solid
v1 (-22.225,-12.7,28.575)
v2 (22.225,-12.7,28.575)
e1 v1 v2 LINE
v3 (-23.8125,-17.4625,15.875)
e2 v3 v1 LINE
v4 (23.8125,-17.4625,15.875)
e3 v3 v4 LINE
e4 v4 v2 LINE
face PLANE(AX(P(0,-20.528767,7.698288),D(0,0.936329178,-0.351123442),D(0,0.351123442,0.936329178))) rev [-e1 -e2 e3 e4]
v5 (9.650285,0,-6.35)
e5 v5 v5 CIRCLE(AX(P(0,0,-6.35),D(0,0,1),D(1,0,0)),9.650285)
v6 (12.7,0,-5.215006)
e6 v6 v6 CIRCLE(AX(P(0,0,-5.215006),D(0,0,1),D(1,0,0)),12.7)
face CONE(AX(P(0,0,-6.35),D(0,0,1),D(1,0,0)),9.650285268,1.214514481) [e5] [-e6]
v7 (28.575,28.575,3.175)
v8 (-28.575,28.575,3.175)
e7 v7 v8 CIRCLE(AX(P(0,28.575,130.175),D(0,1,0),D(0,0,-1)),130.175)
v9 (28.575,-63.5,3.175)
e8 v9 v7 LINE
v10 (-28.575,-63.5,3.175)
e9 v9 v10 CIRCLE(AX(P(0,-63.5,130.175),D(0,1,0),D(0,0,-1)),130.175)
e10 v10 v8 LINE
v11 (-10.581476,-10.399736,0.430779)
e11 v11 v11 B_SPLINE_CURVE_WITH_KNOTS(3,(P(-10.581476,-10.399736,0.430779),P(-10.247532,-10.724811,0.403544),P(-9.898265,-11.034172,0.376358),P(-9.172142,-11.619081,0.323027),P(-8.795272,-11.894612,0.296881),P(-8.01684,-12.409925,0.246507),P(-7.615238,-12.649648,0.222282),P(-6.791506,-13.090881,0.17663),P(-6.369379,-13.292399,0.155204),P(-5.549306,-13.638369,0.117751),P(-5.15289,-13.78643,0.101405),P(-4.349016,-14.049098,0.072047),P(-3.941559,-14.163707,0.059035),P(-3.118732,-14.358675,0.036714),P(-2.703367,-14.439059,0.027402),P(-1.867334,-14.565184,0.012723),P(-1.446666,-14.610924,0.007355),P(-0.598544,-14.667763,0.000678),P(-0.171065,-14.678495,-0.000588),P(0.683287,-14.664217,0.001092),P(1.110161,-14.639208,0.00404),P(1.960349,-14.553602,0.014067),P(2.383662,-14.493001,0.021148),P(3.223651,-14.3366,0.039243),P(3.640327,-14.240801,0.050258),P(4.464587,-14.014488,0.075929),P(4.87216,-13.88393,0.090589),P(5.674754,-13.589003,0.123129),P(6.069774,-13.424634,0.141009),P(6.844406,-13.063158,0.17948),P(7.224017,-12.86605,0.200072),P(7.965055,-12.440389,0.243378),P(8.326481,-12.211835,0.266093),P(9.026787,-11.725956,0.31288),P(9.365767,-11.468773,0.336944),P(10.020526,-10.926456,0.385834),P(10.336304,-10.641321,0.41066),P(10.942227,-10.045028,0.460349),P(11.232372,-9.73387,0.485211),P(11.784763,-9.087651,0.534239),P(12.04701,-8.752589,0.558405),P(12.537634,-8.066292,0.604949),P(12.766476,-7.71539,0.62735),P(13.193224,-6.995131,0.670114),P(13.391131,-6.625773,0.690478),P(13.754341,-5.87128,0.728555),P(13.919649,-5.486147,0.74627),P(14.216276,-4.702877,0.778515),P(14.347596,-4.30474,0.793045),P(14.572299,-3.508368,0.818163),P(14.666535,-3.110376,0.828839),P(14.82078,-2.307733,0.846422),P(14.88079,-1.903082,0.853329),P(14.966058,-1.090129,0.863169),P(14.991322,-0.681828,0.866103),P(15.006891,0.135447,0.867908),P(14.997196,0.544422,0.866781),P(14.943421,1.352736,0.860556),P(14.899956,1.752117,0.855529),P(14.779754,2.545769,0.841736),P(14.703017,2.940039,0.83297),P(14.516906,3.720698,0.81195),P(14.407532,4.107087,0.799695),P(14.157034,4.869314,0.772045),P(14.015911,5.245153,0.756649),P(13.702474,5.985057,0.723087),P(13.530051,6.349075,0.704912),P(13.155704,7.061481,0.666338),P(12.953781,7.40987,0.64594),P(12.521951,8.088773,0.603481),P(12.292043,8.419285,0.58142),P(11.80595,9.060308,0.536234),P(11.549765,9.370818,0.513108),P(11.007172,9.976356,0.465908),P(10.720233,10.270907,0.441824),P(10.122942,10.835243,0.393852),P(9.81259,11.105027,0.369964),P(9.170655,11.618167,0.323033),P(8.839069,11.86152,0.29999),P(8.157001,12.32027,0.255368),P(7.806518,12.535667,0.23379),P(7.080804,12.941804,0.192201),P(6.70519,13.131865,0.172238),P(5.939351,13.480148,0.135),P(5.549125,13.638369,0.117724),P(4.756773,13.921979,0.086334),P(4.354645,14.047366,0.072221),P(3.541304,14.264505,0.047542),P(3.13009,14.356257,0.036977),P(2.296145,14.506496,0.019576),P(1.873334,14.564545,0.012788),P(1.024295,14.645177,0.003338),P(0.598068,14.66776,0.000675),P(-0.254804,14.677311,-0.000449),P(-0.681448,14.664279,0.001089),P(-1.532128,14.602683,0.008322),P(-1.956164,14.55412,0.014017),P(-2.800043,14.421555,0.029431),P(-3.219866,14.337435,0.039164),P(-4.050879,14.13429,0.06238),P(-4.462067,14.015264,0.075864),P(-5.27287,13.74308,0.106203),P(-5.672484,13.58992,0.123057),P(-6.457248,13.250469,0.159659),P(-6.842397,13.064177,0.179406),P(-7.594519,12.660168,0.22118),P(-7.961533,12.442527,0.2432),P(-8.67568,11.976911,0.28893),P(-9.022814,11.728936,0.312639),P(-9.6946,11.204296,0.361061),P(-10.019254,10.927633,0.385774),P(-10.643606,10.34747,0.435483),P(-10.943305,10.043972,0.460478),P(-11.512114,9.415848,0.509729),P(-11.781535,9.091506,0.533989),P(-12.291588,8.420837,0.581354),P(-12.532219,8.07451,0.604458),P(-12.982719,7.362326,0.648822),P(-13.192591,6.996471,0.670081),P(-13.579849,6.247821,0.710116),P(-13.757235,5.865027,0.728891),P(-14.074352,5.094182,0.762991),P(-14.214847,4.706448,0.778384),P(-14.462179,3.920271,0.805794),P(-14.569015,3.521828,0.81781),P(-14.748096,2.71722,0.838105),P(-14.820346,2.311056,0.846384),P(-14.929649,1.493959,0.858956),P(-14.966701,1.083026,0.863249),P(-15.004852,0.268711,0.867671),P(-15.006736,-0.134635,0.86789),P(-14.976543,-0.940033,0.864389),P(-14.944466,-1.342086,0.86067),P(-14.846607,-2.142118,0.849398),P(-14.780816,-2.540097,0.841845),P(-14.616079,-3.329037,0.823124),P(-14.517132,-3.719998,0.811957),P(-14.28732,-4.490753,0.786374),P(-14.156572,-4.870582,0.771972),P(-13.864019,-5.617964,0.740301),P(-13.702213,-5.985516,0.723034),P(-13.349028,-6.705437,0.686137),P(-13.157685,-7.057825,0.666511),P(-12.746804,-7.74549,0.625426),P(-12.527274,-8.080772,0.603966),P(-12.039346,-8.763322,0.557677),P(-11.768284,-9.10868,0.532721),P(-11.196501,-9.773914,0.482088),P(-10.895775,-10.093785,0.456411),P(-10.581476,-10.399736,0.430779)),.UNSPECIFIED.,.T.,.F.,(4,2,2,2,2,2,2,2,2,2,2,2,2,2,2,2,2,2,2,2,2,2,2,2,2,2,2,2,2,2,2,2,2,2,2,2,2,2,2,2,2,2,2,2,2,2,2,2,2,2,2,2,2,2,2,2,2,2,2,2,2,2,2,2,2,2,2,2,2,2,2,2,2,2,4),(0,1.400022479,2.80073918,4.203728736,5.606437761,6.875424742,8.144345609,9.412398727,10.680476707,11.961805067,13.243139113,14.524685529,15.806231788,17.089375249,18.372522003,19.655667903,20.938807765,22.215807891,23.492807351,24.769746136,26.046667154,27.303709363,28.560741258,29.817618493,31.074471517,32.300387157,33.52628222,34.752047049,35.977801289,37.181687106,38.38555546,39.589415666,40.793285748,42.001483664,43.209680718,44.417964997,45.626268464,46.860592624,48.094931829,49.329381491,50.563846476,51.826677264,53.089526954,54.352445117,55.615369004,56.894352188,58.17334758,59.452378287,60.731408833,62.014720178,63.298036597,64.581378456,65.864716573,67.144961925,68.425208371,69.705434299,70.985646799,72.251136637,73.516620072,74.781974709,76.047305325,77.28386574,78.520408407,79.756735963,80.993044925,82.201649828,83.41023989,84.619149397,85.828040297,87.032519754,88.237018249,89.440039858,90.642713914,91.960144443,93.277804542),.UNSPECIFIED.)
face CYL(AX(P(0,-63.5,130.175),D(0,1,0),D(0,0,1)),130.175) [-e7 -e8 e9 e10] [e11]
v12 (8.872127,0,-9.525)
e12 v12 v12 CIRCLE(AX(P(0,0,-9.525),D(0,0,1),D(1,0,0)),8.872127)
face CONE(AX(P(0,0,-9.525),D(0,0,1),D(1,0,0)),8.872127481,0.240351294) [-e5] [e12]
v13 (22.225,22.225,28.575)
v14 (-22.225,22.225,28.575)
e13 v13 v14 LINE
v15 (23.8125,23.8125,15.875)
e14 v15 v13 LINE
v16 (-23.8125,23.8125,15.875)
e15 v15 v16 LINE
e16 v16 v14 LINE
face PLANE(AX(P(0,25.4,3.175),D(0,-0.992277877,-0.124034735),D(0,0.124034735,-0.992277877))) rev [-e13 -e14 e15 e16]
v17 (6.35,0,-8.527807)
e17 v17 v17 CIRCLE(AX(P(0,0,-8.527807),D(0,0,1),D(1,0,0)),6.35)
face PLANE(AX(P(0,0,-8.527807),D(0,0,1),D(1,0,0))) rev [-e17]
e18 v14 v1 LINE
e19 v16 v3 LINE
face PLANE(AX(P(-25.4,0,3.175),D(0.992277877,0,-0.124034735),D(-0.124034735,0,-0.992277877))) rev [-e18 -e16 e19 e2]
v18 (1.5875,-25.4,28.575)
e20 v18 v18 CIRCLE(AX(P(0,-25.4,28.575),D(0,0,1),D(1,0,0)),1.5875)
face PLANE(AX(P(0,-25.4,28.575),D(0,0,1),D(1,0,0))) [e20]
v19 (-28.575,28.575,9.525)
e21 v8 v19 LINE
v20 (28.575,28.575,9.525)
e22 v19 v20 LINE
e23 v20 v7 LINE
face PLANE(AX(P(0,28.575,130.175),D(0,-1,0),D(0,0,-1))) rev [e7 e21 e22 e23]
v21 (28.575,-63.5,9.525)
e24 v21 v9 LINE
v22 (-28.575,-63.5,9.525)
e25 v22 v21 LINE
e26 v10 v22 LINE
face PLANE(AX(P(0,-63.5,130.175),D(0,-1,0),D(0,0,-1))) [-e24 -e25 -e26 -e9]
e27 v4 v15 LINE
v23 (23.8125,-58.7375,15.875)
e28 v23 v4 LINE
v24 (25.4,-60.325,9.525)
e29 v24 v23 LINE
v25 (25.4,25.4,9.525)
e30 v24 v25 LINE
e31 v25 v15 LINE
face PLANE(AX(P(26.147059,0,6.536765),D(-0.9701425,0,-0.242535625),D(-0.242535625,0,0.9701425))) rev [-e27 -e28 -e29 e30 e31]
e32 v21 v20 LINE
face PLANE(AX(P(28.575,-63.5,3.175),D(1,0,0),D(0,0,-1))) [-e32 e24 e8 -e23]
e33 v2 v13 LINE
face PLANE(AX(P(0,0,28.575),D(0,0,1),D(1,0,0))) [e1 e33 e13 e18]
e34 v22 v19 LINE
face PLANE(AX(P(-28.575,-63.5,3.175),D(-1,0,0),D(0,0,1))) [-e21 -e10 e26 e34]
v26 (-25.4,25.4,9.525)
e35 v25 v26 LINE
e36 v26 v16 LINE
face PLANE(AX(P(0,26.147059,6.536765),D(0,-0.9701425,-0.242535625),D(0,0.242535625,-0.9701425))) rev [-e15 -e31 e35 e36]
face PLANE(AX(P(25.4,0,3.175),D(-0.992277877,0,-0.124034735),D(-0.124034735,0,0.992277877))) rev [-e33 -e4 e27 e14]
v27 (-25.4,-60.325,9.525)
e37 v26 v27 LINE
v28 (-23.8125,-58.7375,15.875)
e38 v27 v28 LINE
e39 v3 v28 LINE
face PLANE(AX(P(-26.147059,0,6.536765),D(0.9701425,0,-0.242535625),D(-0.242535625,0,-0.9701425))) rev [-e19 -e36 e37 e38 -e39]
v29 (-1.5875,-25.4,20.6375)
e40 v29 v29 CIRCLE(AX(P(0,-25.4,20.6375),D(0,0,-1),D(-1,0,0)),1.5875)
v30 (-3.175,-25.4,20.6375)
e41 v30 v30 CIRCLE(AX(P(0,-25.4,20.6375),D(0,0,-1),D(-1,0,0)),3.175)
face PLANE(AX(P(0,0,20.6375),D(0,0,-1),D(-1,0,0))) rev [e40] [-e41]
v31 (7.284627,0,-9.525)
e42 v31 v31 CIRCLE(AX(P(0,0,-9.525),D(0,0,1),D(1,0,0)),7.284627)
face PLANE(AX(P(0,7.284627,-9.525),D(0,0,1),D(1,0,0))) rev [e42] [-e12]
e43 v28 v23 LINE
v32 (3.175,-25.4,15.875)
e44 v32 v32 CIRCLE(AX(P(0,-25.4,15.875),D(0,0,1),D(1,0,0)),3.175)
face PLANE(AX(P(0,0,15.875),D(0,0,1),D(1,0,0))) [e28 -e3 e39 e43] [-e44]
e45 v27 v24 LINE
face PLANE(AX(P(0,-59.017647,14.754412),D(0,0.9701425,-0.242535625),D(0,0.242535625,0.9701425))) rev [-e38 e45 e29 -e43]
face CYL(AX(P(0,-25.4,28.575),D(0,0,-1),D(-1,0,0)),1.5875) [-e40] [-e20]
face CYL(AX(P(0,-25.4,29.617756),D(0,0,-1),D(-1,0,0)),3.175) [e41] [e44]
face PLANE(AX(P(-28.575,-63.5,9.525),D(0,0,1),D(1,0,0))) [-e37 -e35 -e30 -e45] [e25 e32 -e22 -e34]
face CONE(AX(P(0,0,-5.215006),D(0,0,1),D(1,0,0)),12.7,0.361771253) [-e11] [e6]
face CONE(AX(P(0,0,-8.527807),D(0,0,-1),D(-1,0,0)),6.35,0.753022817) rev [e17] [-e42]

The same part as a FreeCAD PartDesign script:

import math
import FreeCAD as App
import Part
import Sketcher
from FreeCAD import Vector
Q = App.Units.Quantity


def add_polygon(sketch, points):
    """Adds a closed chain of lines whose ends are joined by coincident constraints."""
    first, n = sketch.GeometryCount, len(points)
    for a, b in zip(points, points[1:] + points[:1]):
        sketch.addGeometry(Part.LineSegment(App.Vector(*a, 0), App.Vector(*b, 0)), False)
    for i in range(n):
        sketch.addConstraint(Sketcher.Constraint("Coincident", first + i, 2, first + (i + 1) % n, 1))

doc = App.newDocument("Part")
body = doc.addObject("PartDesign::Body", "Body")

# Sketch on XZ plane
sketch1 = body.newObject("Sketcher::SketchObject", "Sketch")
sketch1.AttachmentSupport = (doc.getObject("XZ_Plane"), [""])
sketch1.MapMode = "FlatFace"
sketch1.addGeometry([
    Part.LineSegment(Vector(-28.575, 3.175, 0), Vector(-28.575, 9.525, 0)),
    Part.LineSegment(Vector(-28.575, 9.525, 0), Vector(28.575, 9.525, 0)),
    Part.LineSegment(Vector(28.575, 9.525, 0), Vector(28.575, 3.175, 0)),
    Part.ArcOfCircle(Part.Circle(Vector(0, 130.175, 0), Vector(0, 0, 1), 130.175), math.radians(-102.680383), math.radians(-77.319617)),
], False)
sketch1.addConstraint([
    Sketcher.Constraint("Coincident", 0, 2, 1, 1),
    Sketcher.Constraint("Coincident", 1, 2, 2, 1),
    Sketcher.Constraint("Coincident", 2, 2, 3, 2),
    Sketcher.Constraint("Coincident", 3, 1, 0, 1),
    Sketcher.Constraint("Vertical", 0),
    Sketcher.Constraint("Horizontal", 1),
    Sketcher.Constraint("Vertical", 2),
    Sketcher.Constraint("Symmetric", 2, 2, 3, 1, -2),
    Sketcher.Constraint("Radius", 3, Q("5.125 in")),
    Sketcher.Constraint("DistanceY", 2, 2, 3, 3, Q("5 in")),
    Sketcher.Constraint("DistanceY", 0, 1, 0, 2, Q("0.25 in")),
    Sketcher.Constraint("DistanceY", -1, 1, 3, 3, Q("5.125 in")),
])
pad1 = body.newObject("PartDesign::Pad", "Pad")
pad1.Profile = sketch1
pad1.Type = "TwoLengths"
pad1.Length = Q("1.125 in")
pad1.Length2 = Q("2.5 in")
pad1.Reversed = True

# Sketch on YZ plane
sketch2 = body.newObject("Sketcher::SketchObject", "Sketch001")
sketch2.AttachmentSupport = (doc.getObject("YZ_Plane"), [""])
sketch2.MapMode = "FlatFace"
add_polygon(sketch2, [(15.875, 3.175), (0, 3.175), (0, -8.527807), (6.35, -8.527807), (7.284627, -9.525), (8.872127, -9.525), (9.650285, -6.35), (12.7, -5.215006)])  # lines 0-7
sketch2.addConstraint([
    Sketcher.Constraint("Horizontal", 0),
    Sketcher.Constraint("Vertical", 1),
    Sketcher.Constraint("Horizontal", 2),
    Sketcher.Constraint("Horizontal", 4),
    Sketcher.Constraint("PointOnObject", 0, 2, -2),
    Sketcher.Constraint("DistanceX", 2, 1, 2, 2, Q("0.25 in")),
    Sketcher.Constraint("DistanceX", -1, 1, 6, 2, Q("0.5 in")),
    Sketcher.Constraint("DistanceY", 3, 2, 0, 2, Q("0.5 in")),
    Sketcher.Constraint("DistanceX", 0, 2, 0, 1, Q("0.625 in")),
    Sketcher.Constraint("DistanceX", 4, 1, 4, 2, Q("0.0625 in")),
    Sketcher.Constraint("DistanceY", 5, 2, -1, 1, Q("0.25 in")),
    Sketcher.Constraint("DistanceY", -1, 1, 0, 2, Q("0.125 in")),
    Sketcher.Constraint("DistanceY", 2, 2, 6, 2, Q("3.312801 mm")),
    Sketcher.Constraint("Distance", 3, Q("1.366719 mm")),
    Sketcher.Constraint("Distance", 5, Q("3.268968 mm")),
    Sketcher.Constraint("Distance", 6, Q("3.25407 mm")),
])
revolution = body.newObject("PartDesign::Revolution", "Revolution")
revolution.Profile = sketch2
revolution.ReferenceAxis = (sketch2, ["V_Axis"])
revolution.Angle = 360

# Sketch on XY plane
sketch3 = body.newObject("Sketcher::SketchObject", "Sketch002")
sketch3.AttachmentSupport = (doc.getObject("XY_Plane"), [""])
sketch3.MapMode = "FlatFace"
sketch3.AttachmentOffset = App.Placement(Vector(0, 0, 0.375 * 25.4), App.Rotation())
add_polygon(sketch3, [(-25.4, 25.4), (-25.4, -60.325), (25.4, -60.325), (25.4, 25.4)])  # lines 0-3
sketch3.addConstraint([
    Sketcher.Constraint("Vertical", 0),
    Sketcher.Constraint("Horizontal", 1),
    Sketcher.Constraint("Vertical", 2),
    Sketcher.Constraint("Horizontal", 3),
    Sketcher.Constraint("DistanceX", 1, 1, 1, 2, Q("2 in")),
    Sketcher.Constraint("DistanceX", 0, 2, -1, 1, Q("1 in")),
    Sketcher.Constraint("DistanceY", -1, 1, 2, 2, Q("1 in")),
    Sketcher.Constraint("DistanceY", 0, 2, 0, 1, Q("3.375 in")),
])

# Sketch on XY plane
sketch4 = body.newObject("Sketcher::SketchObject", "Sketch003")
sketch4.AttachmentSupport = (doc.getObject("XY_Plane"), [""])
sketch4.MapMode = "FlatFace"
sketch4.AttachmentOffset = App.Placement(Vector(0, 0, 0.625 * 25.4), App.Rotation())
add_polygon(sketch4, [(-23.8125, 23.8125), (-23.8125, -58.7375), (23.8125, -58.7375), (23.8125, 23.8125)])  # lines 0-3
sketch4.addConstraint([
    Sketcher.Constraint("Vertical", 0),
    Sketcher.Constraint("Horizontal", 1),
    Sketcher.Constraint("Vertical", 2),
    Sketcher.Constraint("Horizontal", 3),
    Sketcher.Constraint("DistanceY", 0, 2, 0, 1, Q("3.25 in")),
    Sketcher.Constraint("DistanceX", 1, 1, 1, 2, Q("1.875 in")),
    Sketcher.Constraint("DistanceX", 0, 2, -1, 1, Q("0.9375 in")),
    Sketcher.Constraint("DistanceY", 0, 2, -1, 1, Q("2.3125 in")),
])

additiveloft = body.newObject("PartDesign::AdditiveLoft", "AdditiveLoft")
additiveloft.Profile = sketch3
additiveloft.Sections = [sketch4]

# Sketch on XY plane
sketch5 = body.newObject("Sketcher::SketchObject", "Sketch004")
sketch5.AttachmentSupport = (doc.getObject("XY_Plane"), [""])
sketch5.MapMode = "FlatFace"
sketch5.AttachmentOffset = App.Placement(Vector(0, 0, 0.625 * 25.4), App.Rotation())
add_polygon(sketch5, [(-23.8125, 23.8125), (-23.8125, -17.4625), (23.8125, -17.4625), (23.8125, 23.8125)])  # lines 0-3
sketch5.addConstraint([
    Sketcher.Constraint("Vertical", 0),
    Sketcher.Constraint("Horizontal", 1),
    Sketcher.Constraint("Vertical", 2),
    Sketcher.Constraint("Horizontal", 3),
    Sketcher.Constraint("DistanceX", 1, 1, 1, 2, Q("1.875 in")),
    Sketcher.Constraint("DistanceY", 0, 2, 0, 1, Q("1.625 in")),
    Sketcher.Constraint("DistanceX", 0, 2, -1, 1, Q("0.9375 in")),
    Sketcher.Constraint("DistanceY", 0, 2, -1, 1, Q("0.6875 in")),
])

# Sketch on XY plane
sketch6 = body.newObject("Sketcher::SketchObject", "Sketch005")
sketch6.AttachmentSupport = (doc.getObject("XY_Plane"), [""])
sketch6.MapMode = "FlatFace"
sketch6.AttachmentOffset = App.Placement(Vector(0, 0, 1.125 * 25.4), App.Rotation())
add_polygon(sketch6, [(-22.225, 22.225), (-22.225, -12.7), (22.225, -12.7), (22.225, 22.225)])  # lines 0-3
sketch6.addConstraint([
    Sketcher.Constraint("Vertical", 0),
    Sketcher.Constraint("Horizontal", 1),
    Sketcher.Constraint("Vertical", 2),
    Sketcher.Constraint("Horizontal", 3),
    Sketcher.Constraint("DistanceX", 1, 1, 1, 2, Q("1.75 in")),
    Sketcher.Constraint("DistanceY", 0, 2, -1, 1, Q("0.5 in")),
    Sketcher.Constraint("DistanceY", 0, 2, 0, 1, Q("1.375 in")),
    Sketcher.Constraint("DistanceX", 0, 2, -1, 1, Q("0.875 in")),
])

additiveloft2 = body.newObject("PartDesign::AdditiveLoft", "AdditiveLoft001")
additiveloft2.Profile = sketch5
additiveloft2.Sections = [sketch6]

# Sketch on XY plane
sketch7 = body.newObject("Sketcher::SketchObject", "Sketch006")
sketch7.AttachmentSupport = (doc.getObject("XY_Plane"), [""])
sketch7.MapMode = "FlatFace"
sketch7.AttachmentOffset = App.Placement(Vector(0, 0, 0.625 * 25.4), App.Rotation())
sketch7.addGeometry(Part.Circle(Vector(0, -25.4, 0), Vector(0, 0, 1), 1.5875), False)
sketch7.addConstraint([
    Sketcher.Constraint("PointOnObject", 0, 3, -2),
    Sketcher.Constraint("Diameter", 0, Q("0.125 in")),
    Sketcher.Constraint("DistanceY", 0, 3, -1, 1, Q("1 in")),
])
pad2 = body.newObject("PartDesign::Pad", "Pad001")
pad2.Profile = sketch7
pad2.Length = Q("0.5 in")

# Sketch on XY plane
sketch8 = body.newObject("Sketcher::SketchObject", "Sketch007")
sketch8.AttachmentSupport = (doc.getObject("XY_Plane"), [""])
sketch8.MapMode = "FlatFace"
sketch8.AttachmentOffset = App.Placement(Vector(0, 0, 0.625 * 25.4), App.Rotation())
sketch8.addGeometry(Part.Circle(Vector(0, -25.4, 0), Vector(0, 0, 1), 3.175), False)
sketch8.addConstraint([
    Sketcher.Constraint("PointOnObject", 0, 3, -2),
    Sketcher.Constraint("Diameter", 0, Q("0.25 in")),
    Sketcher.Constraint("DistanceY", 0, 3, -1, 1, Q("1 in")),
])
pad3 = body.newObject("PartDesign::Pad", "Pad002")
pad3.Profile = sketch8
pad3.Length = Q("0.1875 in")

doc.recompute()
